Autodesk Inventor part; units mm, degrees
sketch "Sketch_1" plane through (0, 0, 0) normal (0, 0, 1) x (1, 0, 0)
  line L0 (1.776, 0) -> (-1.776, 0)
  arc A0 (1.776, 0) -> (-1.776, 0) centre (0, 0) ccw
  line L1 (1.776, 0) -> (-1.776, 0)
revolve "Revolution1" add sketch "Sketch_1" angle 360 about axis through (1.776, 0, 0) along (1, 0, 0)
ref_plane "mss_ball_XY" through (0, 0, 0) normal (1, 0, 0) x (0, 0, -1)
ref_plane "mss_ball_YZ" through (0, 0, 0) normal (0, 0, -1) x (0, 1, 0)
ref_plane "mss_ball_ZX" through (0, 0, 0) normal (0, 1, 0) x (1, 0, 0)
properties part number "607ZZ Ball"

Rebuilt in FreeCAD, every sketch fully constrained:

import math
import FreeCAD as App
import Part
import Sketcher

V = App.Vector
Q = App.Units.Quantity

doc = App.newDocument("Part")
body = doc.addObject("PartDesign::Body", "Body")

sketch1 = body.newObject("Sketcher::SketchObject", "Sketch")
sketch1.AttachmentSupport = (doc.getObject("XY_Plane"), [""])
sketch1.MapMode = "FlatFace"
sketch1.addGeometry([
    Part.LineSegment(V(-1.8, 0, 0), V(1.8, 0, 0)),
    Part.ArcOfCircle(Part.Circle(V(0, 0, 0), V(0, 0, 1), 1.8), math.radians(0), math.radians(180)),
], False)
sketch1.addConstraint([
    Sketcher.Constraint("Coincident", 0, 1, 1, 2),
    Sketcher.Constraint("Coincident", 1, 1, 0, 2),
    Sketcher.Constraint("Horizontal", 0),
    Sketcher.Constraint("Coincident", 1, 3, -1, 1),
    Sketcher.Constraint("PointOnObject", 0, 1, -1),
    Sketcher.Constraint("Radius", 1, Q("1.776 mm")),
])
revolution = body.newObject("PartDesign::Revolution", "Revolution")
revolution.Profile = sketch1
revolution.ReferenceAxis = (sketch1, ["H_Axis"])
revolution.Angle = 360

doc.recompute()
